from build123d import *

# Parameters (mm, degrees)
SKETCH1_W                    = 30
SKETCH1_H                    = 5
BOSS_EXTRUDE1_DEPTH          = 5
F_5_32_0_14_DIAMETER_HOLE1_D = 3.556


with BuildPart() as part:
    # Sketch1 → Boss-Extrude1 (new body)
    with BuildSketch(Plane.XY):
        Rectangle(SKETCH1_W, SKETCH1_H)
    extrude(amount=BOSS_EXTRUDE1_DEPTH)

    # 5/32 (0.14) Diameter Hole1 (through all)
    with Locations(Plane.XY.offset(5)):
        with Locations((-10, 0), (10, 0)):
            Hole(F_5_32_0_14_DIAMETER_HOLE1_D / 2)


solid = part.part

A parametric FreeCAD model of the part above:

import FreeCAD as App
import Part
import Sketcher

V = App.Vector
Q = App.Units.Quantity


def add_polygon(sketch, points):
    """Adds a closed chain of lines whose ends are joined by coincident constraints."""
    first, n = sketch.GeometryCount, len(points)
    for a, b in zip(points, points[1:] + points[:1]):
        sketch.addGeometry(Part.LineSegment(App.Vector(*a, 0), App.Vector(*b, 0)), False)
    for i in range(n):
        sketch.addConstraint(Sketcher.Constraint("Coincident", first + i, 2, first + (i + 1) % n, 1))

doc = App.newDocument("Part")
body = doc.addObject("PartDesign::Body", "Body")

# Sketch on XY plane
sketch1 = body.newObject("Sketcher::SketchObject", "Sketch")
sketch1.AttachmentSupport = (doc.getObject("XY_Plane"), [""])
sketch1.MapMode = "FlatFace"
add_polygon(sketch1, [(-15, 2), (-15, -2), (15, -2), (15, 2)])  # lines 0-3
sketch1.addConstraint(Sketcher.Constraint("Vertical", 0))
sketch1.addConstraint(Sketcher.Constraint("Horizontal", 1))
sketch1.addConstraint(Sketcher.Constraint("Vertical", 2))
sketch1.addConstraint(Sketcher.Constraint("Horizontal", 3))
sketch1.addConstraint(Sketcher.Constraint("Symmetric", 0, 2, 2, 2, -1, 1))
sketch1.addConstraint(Sketcher.Constraint("DistanceX", 1, 1, 1, 2, Q("30 mm")))
sketch1.addConstraint(Sketcher.Constraint("DistanceY", 0, 2, 0, 1, Q("5 mm")))
pad1 = body.newObject("PartDesign::Pad", "Pad")
pad1.Profile = sketch1
pad1.Length = 5

# Sketch on XY plane
sketch2 = body.newObject("Sketcher::SketchObject", "Sketch001")
sketch2.AttachmentSupport = (doc.getObject("XY_Plane"), [""])
sketch2.MapMode = "FlatFace"
sketch2.AttachmentOffset = App.Placement(V(0, 0, 5), App.Rotation())
sketch2.addGeometry(Part.Circle(V(-10, 0, 0), V(0, 0, 1), 1.8), False)
sketch2.addGeometry(Part.Circle(V(10, 0, 0), V(0, 0, 1), 1.8), False)
sketch2.addConstraint(Sketcher.Constraint("Equal", 0, 1))
sketch2.addConstraint(Sketcher.Constraint("Symmetric", 0, 3, 1, 3, -1, 1))
sketch2.addConstraint(Sketcher.Constraint("PointOnObject", 0, 3, -1))
sketch2.addConstraint(Sketcher.Constraint("Diameter", 0, Q("3.556 mm")))
sketch2.addConstraint(Sketcher.Constraint("DistanceX", 0, 3, -1, 1, Q("10 mm")))
doc.recompute()
hole = body.newObject("PartDesign::Hole", "Hole")
hole.Profile = sketch2
hole.ThreadType = "None"
hole.Diameter = 3.556
hole.DepthType = "ThroughAll"

doc.recompute()
